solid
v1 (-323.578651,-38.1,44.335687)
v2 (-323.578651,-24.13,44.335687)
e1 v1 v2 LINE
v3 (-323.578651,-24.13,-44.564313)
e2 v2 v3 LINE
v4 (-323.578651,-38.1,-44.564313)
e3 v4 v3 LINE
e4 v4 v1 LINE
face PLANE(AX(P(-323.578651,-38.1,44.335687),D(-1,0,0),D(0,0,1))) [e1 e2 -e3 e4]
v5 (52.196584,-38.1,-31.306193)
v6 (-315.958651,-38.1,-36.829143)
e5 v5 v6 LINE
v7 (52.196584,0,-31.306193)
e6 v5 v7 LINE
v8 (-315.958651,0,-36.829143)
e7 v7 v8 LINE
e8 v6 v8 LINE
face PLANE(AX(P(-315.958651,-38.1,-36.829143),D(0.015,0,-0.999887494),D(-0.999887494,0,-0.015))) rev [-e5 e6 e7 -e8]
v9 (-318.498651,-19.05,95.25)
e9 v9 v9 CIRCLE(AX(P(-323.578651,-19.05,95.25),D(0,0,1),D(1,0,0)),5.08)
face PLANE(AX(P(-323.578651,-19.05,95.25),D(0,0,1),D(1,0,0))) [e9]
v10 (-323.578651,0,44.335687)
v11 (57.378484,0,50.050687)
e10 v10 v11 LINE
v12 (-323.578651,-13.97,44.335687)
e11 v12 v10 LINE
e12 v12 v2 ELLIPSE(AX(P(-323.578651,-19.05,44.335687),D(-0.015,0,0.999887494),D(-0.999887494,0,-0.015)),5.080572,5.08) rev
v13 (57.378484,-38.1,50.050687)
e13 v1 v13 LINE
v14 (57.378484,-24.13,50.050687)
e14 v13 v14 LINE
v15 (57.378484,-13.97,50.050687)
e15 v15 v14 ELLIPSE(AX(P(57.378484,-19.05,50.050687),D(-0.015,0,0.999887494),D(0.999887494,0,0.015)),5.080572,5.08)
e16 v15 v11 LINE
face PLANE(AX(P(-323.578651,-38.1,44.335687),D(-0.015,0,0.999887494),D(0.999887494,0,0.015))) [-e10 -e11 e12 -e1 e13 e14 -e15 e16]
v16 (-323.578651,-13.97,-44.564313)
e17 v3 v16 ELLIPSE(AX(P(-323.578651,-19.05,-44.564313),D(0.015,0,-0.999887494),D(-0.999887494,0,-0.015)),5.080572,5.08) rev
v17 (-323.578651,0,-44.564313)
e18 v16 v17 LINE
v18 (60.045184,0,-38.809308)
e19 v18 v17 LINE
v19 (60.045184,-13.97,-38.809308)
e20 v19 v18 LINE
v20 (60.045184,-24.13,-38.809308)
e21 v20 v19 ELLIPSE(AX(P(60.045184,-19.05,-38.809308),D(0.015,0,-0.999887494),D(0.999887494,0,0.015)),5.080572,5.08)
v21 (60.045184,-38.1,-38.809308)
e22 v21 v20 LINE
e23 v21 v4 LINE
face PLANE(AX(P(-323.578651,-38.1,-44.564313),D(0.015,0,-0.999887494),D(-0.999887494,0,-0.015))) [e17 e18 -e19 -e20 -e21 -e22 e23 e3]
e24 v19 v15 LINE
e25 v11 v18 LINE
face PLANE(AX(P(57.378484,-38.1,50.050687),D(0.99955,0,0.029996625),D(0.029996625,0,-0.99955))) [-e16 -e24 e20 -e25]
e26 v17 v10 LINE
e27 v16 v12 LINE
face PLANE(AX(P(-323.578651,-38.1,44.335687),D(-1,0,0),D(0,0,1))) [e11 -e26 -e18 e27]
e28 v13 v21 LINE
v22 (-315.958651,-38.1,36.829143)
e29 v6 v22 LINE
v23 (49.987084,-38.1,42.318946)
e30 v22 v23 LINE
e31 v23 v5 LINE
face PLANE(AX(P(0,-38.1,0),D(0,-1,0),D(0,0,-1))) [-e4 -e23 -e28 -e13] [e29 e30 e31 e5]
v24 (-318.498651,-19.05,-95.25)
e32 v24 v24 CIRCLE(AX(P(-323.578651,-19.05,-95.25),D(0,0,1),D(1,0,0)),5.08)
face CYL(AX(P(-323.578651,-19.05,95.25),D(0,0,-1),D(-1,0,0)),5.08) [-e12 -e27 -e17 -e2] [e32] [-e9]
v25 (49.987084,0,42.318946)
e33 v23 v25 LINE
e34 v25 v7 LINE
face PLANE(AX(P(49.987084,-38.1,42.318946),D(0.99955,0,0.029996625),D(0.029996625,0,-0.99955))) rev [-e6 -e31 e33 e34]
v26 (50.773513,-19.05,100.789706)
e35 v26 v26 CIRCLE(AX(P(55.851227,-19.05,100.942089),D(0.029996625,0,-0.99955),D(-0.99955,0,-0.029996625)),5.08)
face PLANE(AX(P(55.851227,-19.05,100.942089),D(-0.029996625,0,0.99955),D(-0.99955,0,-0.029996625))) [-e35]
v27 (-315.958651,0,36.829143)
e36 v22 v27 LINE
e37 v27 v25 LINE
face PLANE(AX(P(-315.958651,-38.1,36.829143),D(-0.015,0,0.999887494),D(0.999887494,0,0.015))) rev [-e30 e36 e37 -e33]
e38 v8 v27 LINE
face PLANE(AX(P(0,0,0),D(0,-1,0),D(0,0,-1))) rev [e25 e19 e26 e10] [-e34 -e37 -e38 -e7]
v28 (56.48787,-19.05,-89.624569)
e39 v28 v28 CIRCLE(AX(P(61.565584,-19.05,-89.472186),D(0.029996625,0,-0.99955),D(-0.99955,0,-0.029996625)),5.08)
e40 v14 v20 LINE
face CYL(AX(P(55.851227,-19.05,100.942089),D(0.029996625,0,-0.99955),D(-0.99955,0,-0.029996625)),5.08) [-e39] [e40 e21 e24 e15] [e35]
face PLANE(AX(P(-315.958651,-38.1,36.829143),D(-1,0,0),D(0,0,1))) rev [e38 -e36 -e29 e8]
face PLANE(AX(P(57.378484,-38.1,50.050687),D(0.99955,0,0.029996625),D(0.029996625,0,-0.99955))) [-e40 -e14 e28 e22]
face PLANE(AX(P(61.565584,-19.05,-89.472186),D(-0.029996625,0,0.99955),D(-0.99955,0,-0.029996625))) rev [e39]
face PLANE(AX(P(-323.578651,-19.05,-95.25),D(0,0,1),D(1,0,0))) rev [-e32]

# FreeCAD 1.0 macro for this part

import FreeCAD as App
import Part
import Sketcher
Q = App.Units.Quantity


def add_polygon(sketch, points):
    """Adds a closed chain of lines whose ends are joined by coincident constraints."""
    first, n = sketch.GeometryCount, len(points)
    for a, b in zip(points, points[1:] + points[:1]):
        sketch.addGeometry(Part.LineSegment(App.Vector(*a, 0), App.Vector(*b, 0)), False)
    for i in range(n):
        sketch.addConstraint(Sketcher.Constraint("Coincident", first + i, 2, first + (i + 1) % n, 1))

doc = App.newDocument("Part")
body = doc.addObject("PartDesign::Body", "Body")

# Sketch on XZ plane
sketch1 = body.newObject("Sketcher::SketchObject", "Sketch")
sketch1.AttachmentSupport = (doc.getObject("XZ_Plane"), [""])
sketch1.MapMode = "FlatFace"
add_polygon(sketch1, [(-323.578651, 44.335687), (57.378484, 50.050687), (60.045184, -38.809308), (-323.578651, -44.564313)])  # lines 0-3
add_polygon(sketch1, [(49.987084, 42.318946), (-315.958651, 36.829143), (-315.958651, -36.829143), (52.196584, -31.306193)])  # lines 4-7
sketch1.addConstraint([
    Sketcher.Constraint("Vertical", 3),
    Sketcher.Constraint("Vertical", 5),
    Sketcher.Constraint("Parallel", 0, 2),
    Sketcher.Constraint("Parallel", 2, 4),
    Sketcher.Constraint("Parallel", 4, 6),
    Sketcher.Constraint("Parallel", 1, 7),
    Sketcher.Constraint("Distance", 0, Q("15 in")),
    Sketcher.Constraint("DistanceY", 3, 1, 3, 2, Q("3.5 in")),
    Sketcher.Constraint("Distance", 1, Q("3.5 in")),
    Sketcher.Constraint("DistanceX", 3, 2, 4, 2, Q("0.3 in")),
    Sketcher.Constraint("Distance", 2, Q("15.105 in")),
    Sketcher.Constraint("DistanceX", 6, 2, 1, 2, Q("0.309 in")),
    Sketcher.Constraint("DistanceX", 7, 2, 0, 2, Q("0.291 in")),
    Sketcher.Constraint("DistanceX", 2, 2, -1, 1, Q("323.578651 mm")),
    Sketcher.Constraint("DistanceY", 1, 2, 4, 2, Q("75.63845 mm")),
    Sketcher.Constraint("DistanceY", -1, 1, 0, 2, Q("50.050687 mm")),
])
pad1 = body.newObject("PartDesign::Pad", "Pad")
pad1.Profile = sketch1
pad1.Length = Q("1.5 in")

# Sketch on XY plane
sketch2 = body.newObject("Sketcher::SketchObject", "Sketch001")
sketch2.AttachmentSupport = (doc.getObject("XY_Plane"), [""])
sketch2.MapMode = "FlatFace"
sketch2.addGeometry(Part.Circle(App.Vector(-323.578651, -19.05, 0), App.Vector(0, 0, 1), 5.08), False)
sketch2.addConstraint([
    Sketcher.Constraint("Diameter", 0, Q("0.4 in")),
    Sketcher.Constraint("DistanceY", 0, 3, -1, 1, Q("0.75 in")),
    Sketcher.Constraint("DistanceX", 0, 3, -1, 1, Q("323.578651 mm")),
])
pad2 = body.newObject("PartDesign::Pad", "Pad001")
pad2.Profile = sketch2
pad2.Length = Q("7.5 in")
pad2.Midplane = True
doc.recompute()

datumplane = body.newObject("PartDesign::Plane", "DatumPlane")
datumplane.Placement = App.Placement(App.Vector(-132.362318, 0, -1.985658), App.Rotation(App.Vector(-0.015, 0, 0.999887494), App.Vector(0, -1, 0), App.Vector(0.999887494, 0, 0.015), "ZXY"))
mirrored = body.newObject("PartDesign::Mirrored", "Mirrored")
mirrored.Originals = [pad2]
mirrored.MirrorPlane = (datumplane, [""])
body.Tip = mirrored

doc.recompute()
